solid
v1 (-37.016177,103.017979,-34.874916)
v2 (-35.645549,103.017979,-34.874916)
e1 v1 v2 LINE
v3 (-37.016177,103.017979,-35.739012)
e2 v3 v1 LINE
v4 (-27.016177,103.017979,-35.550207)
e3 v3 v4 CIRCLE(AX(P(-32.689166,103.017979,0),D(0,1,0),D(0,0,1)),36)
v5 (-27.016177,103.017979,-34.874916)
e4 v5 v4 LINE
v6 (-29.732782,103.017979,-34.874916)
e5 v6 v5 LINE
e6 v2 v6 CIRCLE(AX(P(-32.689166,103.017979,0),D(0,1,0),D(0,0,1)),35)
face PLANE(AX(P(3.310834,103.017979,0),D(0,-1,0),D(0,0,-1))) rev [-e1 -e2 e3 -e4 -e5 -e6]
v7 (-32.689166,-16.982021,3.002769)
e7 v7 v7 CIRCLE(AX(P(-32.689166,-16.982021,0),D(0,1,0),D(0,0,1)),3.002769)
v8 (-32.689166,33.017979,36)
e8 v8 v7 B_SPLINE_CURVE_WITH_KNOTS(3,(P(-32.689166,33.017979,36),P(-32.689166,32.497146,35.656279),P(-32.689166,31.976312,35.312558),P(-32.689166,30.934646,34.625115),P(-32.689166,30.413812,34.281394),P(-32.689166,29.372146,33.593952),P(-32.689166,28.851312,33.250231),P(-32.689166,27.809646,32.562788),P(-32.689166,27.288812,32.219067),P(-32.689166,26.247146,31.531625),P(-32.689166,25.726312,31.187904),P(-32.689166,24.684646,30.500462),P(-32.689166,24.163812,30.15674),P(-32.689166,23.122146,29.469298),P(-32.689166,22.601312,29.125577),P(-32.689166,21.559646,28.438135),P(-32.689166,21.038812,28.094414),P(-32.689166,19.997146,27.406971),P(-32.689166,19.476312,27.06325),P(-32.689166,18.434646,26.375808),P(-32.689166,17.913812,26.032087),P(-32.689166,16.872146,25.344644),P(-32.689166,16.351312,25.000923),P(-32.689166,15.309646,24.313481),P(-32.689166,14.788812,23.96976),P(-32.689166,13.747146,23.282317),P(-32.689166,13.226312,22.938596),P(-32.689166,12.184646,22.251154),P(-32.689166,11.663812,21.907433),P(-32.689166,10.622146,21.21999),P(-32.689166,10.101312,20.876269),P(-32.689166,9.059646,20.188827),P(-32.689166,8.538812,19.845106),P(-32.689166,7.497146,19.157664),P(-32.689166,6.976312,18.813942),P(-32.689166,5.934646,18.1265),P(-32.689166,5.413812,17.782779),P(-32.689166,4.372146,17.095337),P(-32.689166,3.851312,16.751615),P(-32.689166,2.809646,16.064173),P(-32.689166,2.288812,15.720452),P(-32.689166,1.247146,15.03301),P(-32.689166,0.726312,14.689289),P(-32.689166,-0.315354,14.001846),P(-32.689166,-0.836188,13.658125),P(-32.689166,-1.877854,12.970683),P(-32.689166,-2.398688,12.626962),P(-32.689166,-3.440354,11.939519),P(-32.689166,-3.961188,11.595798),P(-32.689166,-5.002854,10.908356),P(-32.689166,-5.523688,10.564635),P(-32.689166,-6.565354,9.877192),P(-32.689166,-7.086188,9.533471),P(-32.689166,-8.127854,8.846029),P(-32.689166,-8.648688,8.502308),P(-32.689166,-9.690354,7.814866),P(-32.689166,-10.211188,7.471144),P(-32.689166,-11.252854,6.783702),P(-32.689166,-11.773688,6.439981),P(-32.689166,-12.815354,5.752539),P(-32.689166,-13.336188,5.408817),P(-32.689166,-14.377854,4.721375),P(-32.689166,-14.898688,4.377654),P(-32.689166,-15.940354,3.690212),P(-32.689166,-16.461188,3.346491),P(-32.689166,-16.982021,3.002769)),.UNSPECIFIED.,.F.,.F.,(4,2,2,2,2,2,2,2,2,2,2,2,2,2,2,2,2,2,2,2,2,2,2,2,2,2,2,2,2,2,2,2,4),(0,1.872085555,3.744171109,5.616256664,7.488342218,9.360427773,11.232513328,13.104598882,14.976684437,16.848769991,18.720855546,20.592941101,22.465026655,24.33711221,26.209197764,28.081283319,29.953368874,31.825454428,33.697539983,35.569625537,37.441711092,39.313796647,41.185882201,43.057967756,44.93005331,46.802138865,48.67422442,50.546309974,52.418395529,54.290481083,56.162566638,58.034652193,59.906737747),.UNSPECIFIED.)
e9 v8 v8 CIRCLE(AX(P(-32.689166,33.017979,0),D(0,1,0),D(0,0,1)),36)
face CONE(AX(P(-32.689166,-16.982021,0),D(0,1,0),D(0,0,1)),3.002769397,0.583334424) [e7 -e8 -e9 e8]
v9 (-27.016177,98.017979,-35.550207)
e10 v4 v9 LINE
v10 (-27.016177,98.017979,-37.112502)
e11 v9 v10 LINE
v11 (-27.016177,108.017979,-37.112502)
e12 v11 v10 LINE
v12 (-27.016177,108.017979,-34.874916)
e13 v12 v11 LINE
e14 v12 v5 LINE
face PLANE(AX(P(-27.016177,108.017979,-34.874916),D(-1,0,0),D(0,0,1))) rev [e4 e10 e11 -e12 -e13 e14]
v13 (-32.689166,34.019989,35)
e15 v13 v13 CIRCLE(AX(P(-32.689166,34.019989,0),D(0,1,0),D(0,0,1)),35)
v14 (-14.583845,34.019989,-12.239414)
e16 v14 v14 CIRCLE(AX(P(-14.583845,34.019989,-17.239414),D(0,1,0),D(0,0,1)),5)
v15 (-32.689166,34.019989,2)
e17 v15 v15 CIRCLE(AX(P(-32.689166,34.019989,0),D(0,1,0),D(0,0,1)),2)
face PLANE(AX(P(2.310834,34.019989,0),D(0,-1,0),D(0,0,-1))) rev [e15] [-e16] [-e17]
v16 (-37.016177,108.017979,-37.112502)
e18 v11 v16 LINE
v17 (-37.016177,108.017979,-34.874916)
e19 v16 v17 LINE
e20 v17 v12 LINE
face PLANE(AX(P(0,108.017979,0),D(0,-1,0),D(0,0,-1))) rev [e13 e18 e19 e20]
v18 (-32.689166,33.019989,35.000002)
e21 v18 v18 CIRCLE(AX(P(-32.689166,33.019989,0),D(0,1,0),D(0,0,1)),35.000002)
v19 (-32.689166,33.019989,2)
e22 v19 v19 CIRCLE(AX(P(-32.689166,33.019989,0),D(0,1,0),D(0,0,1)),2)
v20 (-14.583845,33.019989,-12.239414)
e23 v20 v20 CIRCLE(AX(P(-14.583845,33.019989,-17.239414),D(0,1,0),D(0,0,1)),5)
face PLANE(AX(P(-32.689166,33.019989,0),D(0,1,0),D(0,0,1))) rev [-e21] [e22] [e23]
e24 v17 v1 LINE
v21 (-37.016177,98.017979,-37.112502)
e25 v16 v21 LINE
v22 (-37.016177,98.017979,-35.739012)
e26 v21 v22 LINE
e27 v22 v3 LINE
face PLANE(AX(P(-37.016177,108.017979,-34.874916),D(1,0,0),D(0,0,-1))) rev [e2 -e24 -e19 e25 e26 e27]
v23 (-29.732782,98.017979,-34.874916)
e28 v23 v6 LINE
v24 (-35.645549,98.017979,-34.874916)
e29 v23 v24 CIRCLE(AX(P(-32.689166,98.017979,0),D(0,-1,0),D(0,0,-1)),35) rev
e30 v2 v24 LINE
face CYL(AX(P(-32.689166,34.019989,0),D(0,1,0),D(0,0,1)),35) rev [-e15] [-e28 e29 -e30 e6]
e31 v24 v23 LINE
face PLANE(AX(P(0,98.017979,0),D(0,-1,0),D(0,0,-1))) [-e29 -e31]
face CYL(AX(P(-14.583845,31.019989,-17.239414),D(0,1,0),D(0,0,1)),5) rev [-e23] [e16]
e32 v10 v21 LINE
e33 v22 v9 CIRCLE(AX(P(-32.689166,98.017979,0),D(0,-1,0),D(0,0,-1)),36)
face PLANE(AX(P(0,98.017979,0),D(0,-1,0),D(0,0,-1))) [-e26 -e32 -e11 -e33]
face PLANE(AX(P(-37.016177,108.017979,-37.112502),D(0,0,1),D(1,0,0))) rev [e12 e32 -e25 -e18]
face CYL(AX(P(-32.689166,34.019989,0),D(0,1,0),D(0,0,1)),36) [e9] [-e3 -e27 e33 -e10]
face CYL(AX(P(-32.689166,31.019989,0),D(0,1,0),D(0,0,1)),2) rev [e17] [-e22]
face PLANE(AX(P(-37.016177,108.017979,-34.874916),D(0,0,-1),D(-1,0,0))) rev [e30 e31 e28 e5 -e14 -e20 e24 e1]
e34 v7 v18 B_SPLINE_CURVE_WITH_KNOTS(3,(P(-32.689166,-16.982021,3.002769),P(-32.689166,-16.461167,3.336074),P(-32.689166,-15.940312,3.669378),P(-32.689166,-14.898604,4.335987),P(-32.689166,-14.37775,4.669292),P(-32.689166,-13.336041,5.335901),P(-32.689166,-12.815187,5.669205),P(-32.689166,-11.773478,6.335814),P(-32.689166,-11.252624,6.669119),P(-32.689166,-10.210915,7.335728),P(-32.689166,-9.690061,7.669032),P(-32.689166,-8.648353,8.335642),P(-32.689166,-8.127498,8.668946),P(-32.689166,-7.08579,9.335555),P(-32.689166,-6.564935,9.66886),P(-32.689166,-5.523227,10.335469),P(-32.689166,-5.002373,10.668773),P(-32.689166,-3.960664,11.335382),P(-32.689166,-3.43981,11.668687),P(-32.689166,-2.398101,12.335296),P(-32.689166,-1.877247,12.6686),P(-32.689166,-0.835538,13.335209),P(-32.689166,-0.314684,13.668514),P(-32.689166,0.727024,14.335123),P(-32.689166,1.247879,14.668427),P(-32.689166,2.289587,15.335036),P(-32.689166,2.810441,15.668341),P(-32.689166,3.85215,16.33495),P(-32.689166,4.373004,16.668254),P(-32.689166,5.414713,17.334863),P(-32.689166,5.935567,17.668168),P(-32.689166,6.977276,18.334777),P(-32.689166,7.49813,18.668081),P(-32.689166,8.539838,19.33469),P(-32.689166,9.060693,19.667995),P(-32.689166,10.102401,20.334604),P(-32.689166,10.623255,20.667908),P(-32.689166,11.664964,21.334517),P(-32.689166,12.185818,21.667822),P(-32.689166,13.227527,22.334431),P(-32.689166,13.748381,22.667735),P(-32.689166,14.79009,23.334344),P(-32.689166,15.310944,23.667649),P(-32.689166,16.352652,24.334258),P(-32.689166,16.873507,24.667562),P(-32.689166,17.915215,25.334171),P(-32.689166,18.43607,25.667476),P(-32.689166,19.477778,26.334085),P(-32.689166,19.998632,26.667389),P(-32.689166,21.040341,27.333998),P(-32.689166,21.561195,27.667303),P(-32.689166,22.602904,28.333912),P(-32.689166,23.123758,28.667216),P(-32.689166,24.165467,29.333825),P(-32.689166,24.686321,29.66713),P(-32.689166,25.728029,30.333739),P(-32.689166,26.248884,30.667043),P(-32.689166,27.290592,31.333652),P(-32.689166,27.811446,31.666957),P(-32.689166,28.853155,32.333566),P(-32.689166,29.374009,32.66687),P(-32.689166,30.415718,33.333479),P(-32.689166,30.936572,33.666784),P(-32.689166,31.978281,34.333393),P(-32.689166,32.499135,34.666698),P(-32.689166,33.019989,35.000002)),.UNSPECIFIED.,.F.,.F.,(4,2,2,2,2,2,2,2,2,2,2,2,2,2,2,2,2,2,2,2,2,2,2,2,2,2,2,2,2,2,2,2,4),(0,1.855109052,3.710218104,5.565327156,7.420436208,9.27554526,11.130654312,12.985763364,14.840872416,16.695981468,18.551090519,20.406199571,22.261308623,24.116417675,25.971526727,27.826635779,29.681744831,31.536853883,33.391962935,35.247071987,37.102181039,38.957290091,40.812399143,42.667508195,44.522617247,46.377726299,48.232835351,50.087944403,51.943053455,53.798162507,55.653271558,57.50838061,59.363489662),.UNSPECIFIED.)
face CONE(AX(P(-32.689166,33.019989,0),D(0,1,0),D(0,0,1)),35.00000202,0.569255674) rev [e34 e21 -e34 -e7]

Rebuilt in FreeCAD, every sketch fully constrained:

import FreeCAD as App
import Part
import Sketcher
from FreeCAD import Vector

doc = App.newDocument("Part")
body = doc.addObject("PartDesign::Body", "Body")

# Sketch on XY plane
sketch1 = doc.addObject("Sketcher::SketchObject", "Sketch")
body.addObject(sketch1)
sketch1.AttachmentSupport = (doc.XY_Plane, [""])
sketch1.MapMode = "FlatFace"
sketch1.addGeometry(Part.LineSegment(Vector(2.310834, 103.017979, 0), Vector(2.310834, 34.019989, 0)), False)
sketch1.addGeometry(Part.LineSegment(Vector(2.310834, 34.019989, 0), Vector(-32.689166, 34.019989, 0)), False)
sketch1.addGeometry(Part.LineSegment(Vector(-32.689166, 34.019989, 0), Vector(-32.689166, 33.019989, 0)), False)
sketch1.addGeometry(Part.LineSegment(Vector(-32.689166, 33.019989, 0), Vector(2.310836, 33.019989, 0)), False)
sketch1.addGeometry(Part.LineSegment(Vector(2.310836, 33.019989, 0), Vector(-29.686396, -16.982021, 0)), False)
sketch1.addGeometry(Part.LineSegment(Vector(-29.686396, -16.982021, 0), Vector(3.310834, 33.017979, 0)), False)
sketch1.addGeometry(Part.LineSegment(Vector(3.310834, 33.017979, 0), Vector(3.310834, 103.017979, 0)), False)
sketch1.addGeometry(Part.LineSegment(Vector(3.310834, 103.017979, 0), Vector(2.310834, 103.017979, 0)), False)
sketch1.addGeometry(Part.LineSegment(Vector(-32.689166, 103.017979, 0), Vector(-32.689166, -16.982021, 0)), True)  # axis
sketch1.addConstraint(Sketcher.Constraint("Coincident", 0, 2, 1, 1))
sketch1.addConstraint(Sketcher.Constraint("Coincident", 1, 2, 2, 1))
sketch1.addConstraint(Sketcher.Constraint("Coincident", 2, 2, 3, 1))
sketch1.addConstraint(Sketcher.Constraint("Coincident", 3, 2, 4, 1))
sketch1.addConstraint(Sketcher.Constraint("Coincident", 4, 2, 5, 1))
sketch1.addConstraint(Sketcher.Constraint("Coincident", 5, 2, 6, 1))
sketch1.addConstraint(Sketcher.Constraint("Coincident", 6, 2, 7, 1))
sketch1.addConstraint(Sketcher.Constraint("Coincident", 7, 2, 0, 1))
sketch1.addConstraint(Sketcher.Constraint("Vertical", 0))
sketch1.addConstraint(Sketcher.Constraint("Horizontal", 1))
sketch1.addConstraint(Sketcher.Constraint("Vertical", 2))
sketch1.addConstraint(Sketcher.Constraint("Horizontal", 3))
sketch1.addConstraint(Sketcher.Constraint("Vertical", 6))
sketch1.addConstraint(Sketcher.Constraint("Horizontal", 7))
sketch1.addConstraint(Sketcher.Constraint("Vertical", 8))
sketch1.addConstraint(Sketcher.Constraint("Horizontal", 7, 2, 8, 1))
sketch1.addConstraint(Sketcher.Constraint("Horizontal", 4, 2, 8, 2))
sketch1.addConstraint(Sketcher.Constraint("Vertical", 2, 2, 8, 1))
sketch1.addConstraint(Sketcher.Constraint("Equal", 7, 2))
sketch1.addConstraint(Sketcher.Constraint("DistanceX", 1, 2, 1, 1, 35.0))
sketch1.addConstraint(Sketcher.Constraint("DistanceX", 7, 2, 7, 1, 1.0))
sketch1.addConstraint(Sketcher.Constraint("DistanceY", 6, 1, 6, 2, 70.0))
sketch1.addConstraint(Sketcher.Constraint("DistanceY", 8, 2, 8, 1, 120.0))
sketch1.addConstraint(Sketcher.Constraint("DistanceY", 0, 2, 0, 1, 68.99799))
sketch1.addConstraint(Sketcher.Constraint("Distance", 4, 59.36349))
sketch1.addConstraint(Sketcher.Constraint("DistanceX", 3, 1, 3, 2, 35.000002))
sketch1.addConstraint(Sketcher.Constraint("DistanceY", -1, 1, 0, 2, 34.019989))
sketch1.addConstraint(Sketcher.Constraint("DistanceX", -1, 1, 0, 2, 2.310834))
revolution = doc.addObject("PartDesign::Revolution", "Revolution")
body.addObject(revolution)
revolution.Profile = sketch1
revolution.ReferenceAxis = (sketch1, ["Axis0"])
revolution.Angle = 360

# Sketch on XZ plane
sketch2 = doc.addObject("Sketcher::SketchObject", "Sketch001")
body.addObject(sketch2)
sketch2.AttachmentSupport = (doc.XZ_Plane, [""])
sketch2.MapMode = "FlatFace"
sketch2.AttachmentOffset = App.Placement(Vector(0, 0, -34.019989), App.Rotation())
sketch2.addGeometry(Part.Circle(Vector(-32.689166, 0, 0), Vector(0, 0, 1), 2), False)
sketch2.addGeometry(Part.Circle(Vector(-14.583845, -17.239414, 0), Vector(0, 0, 1), 5), False)
sketch2.addConstraint(Sketcher.Constraint("PointOnObject", 0, 3, -1))
sketch2.addConstraint(Sketcher.Constraint("Diameter", 0, 4.0))
sketch2.addConstraint(Sketcher.Constraint("Diameter", 1, 10.0))
sketch2.addConstraint(Sketcher.Constraint("DistanceX", 0, 3, 1, 3, 18.10532))
sketch2.addConstraint(Sketcher.Constraint("DistanceX", 0, 3, -1, 1, 32.689166))
sketch2.addConstraint(Sketcher.Constraint("DistanceY", 1, 3, -1, 1, 17.239414))
pocket1 = doc.addObject("PartDesign::Pocket", "Pocket")
body.addObject(pocket1)
pocket1.Profile = sketch2
pocket1.Length = 3
pocket1.Reversed = True

# Sketch on XZ plane
sketch3 = doc.addObject("Sketcher::SketchObject", "Sketch002")
body.addObject(sketch3)
sketch3.AttachmentSupport = (doc.XZ_Plane, [""])
sketch3.MapMode = "FlatFace"
sketch3.AttachmentOffset = App.Placement(Vector(0, 0, -103.017979), App.Rotation())
sketch3.addGeometry(Part.LineSegment(Vector(-37.016177, -37.112502, 0), Vector(-37.016177, -34.874916, 0)), False)
sketch3.addGeometry(Part.LineSegment(Vector(-37.016177, -34.874916, 0), Vector(-27.016177, -34.874916, 0)), False)
sketch3.addGeometry(Part.LineSegment(Vector(-27.016177, -34.874916, 0), Vector(-27.016177, -37.112502, 0)), False)
sketch3.addGeometry(Part.LineSegment(Vector(-27.016177, -37.112502, 0), Vector(-37.016177, -37.112502, 0)), False)
sketch3.addConstraint(Sketcher.Constraint("Coincident", 0, 2, 1, 1))
sketch3.addConstraint(Sketcher.Constraint("Coincident", 1, 2, 2, 1))
sketch3.addConstraint(Sketcher.Constraint("Coincident", 2, 2, 3, 1))
sketch3.addConstraint(Sketcher.Constraint("Coincident", 3, 2, 0, 1))
sketch3.addConstraint(Sketcher.Constraint("Vertical", 0))
sketch3.addConstraint(Sketcher.Constraint("Horizontal", 1))
sketch3.addConstraint(Sketcher.Constraint("Vertical", 2))
sketch3.addConstraint(Sketcher.Constraint("Horizontal", 3))
sketch3.addConstraint(Sketcher.Constraint("DistanceX", 1, 1, 1, 2, 10.0))
sketch3.addConstraint(Sketcher.Constraint("DistanceY", 2, 2, -1, 1, 37.112502))
sketch3.addConstraint(Sketcher.Constraint("DistanceY", 0, 1, 0, 2, 2.237585))
sketch3.addConstraint(Sketcher.Constraint("DistanceX", 0, 2, -1, 1, 37.016177))
pad1 = doc.addObject("PartDesign::Pad", "Pad")
body.addObject(pad1)
pad1.Profile = sketch3
pad1.Length = 10
pad1.Midplane = True

doc.recompute()
